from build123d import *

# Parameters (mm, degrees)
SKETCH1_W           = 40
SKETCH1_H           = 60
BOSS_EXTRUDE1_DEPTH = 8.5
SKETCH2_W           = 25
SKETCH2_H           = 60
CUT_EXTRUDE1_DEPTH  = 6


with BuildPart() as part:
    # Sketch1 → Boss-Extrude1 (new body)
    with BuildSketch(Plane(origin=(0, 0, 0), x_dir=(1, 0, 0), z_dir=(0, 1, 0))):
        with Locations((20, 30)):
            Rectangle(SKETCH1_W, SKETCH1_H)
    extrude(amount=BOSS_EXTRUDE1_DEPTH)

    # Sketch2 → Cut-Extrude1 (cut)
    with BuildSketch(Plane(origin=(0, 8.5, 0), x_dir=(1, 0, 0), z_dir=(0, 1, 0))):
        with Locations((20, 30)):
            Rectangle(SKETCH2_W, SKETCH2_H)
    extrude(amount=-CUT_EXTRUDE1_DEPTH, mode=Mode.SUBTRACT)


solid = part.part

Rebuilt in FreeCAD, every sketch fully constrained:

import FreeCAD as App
import Part
import Sketcher

V = App.Vector


def add_polygon(sketch, points):
    """Adds a closed chain of lines whose ends are joined by coincident constraints."""
    first, n = sketch.GeometryCount, len(points)
    for a, b in zip(points, points[1:] + points[:1]):
        sketch.addGeometry(Part.LineSegment(App.Vector(*a, 0), App.Vector(*b, 0)), False)
    for i in range(n):
        sketch.addConstraint(Sketcher.Constraint("Coincident", first + i, 2, first + (i + 1) % n, 1))

doc = App.newDocument("Part")
body = doc.addObject("PartDesign::Body", "Body")

sketch1 = body.newObject("Sketcher::SketchObject", "Sketch")
sketch1.AttachmentSupport = (doc.getObject("XZ_Plane"), [""])
sketch1.MapMode = "FlatFace"
add_polygon(sketch1, [(0, -60), (0, 0), (40, 0), (40, -60)])
sketch1.addConstraint([
    Sketcher.Constraint("Vertical", 0),
    Sketcher.Constraint("Horizontal", 1),
    Sketcher.Constraint("Vertical", 2),
    Sketcher.Constraint("Horizontal", 3),
    Sketcher.Constraint("Coincident", 0, 2, -1, 1),
    Sketcher.Constraint("DistanceX", 1, 1, 1, 2, 40.0),
    Sketcher.Constraint("DistanceY", 0, 1, 0, 2, 60.0),
])
pad1 = body.newObject("PartDesign::Pad", "Pad")
pad1.Profile = sketch1
pad1.Length = 8.5
pad1.Reversed = True

sketch2 = body.newObject("Sketcher::SketchObject", "Sketch001")
sketch2.AttachmentSupport = (doc.getObject("XZ_Plane"), [""])
sketch2.MapMode = "FlatFace"
sketch2.AttachmentOffset = App.Placement(V(0, 0, -8.5), App.Rotation())
add_polygon(sketch2, [(8, -60), (8, 0), (32, 0), (32, -60)])
sketch2.addConstraint([
    Sketcher.Constraint("Vertical", 0),
    Sketcher.Constraint("Horizontal", 1),
    Sketcher.Constraint("Vertical", 2),
    Sketcher.Constraint("Horizontal", 3),
    Sketcher.Constraint("PointOnObject", 0, 2, -1),
    Sketcher.Constraint("DistanceX", 1, 1, 1, 2, 25.0),
    Sketcher.Constraint("DistanceY", 0, 1, 0, 2, 60.0),
    Sketcher.Constraint("DistanceX", -1, 1, 0, 2, 7.5),
])
pocket1 = body.newObject("PartDesign::Pocket", "Pocket")
pocket1.Profile = sketch2
pocket1.Length = 6
pocket1.Reversed = True

doc.recompute()
